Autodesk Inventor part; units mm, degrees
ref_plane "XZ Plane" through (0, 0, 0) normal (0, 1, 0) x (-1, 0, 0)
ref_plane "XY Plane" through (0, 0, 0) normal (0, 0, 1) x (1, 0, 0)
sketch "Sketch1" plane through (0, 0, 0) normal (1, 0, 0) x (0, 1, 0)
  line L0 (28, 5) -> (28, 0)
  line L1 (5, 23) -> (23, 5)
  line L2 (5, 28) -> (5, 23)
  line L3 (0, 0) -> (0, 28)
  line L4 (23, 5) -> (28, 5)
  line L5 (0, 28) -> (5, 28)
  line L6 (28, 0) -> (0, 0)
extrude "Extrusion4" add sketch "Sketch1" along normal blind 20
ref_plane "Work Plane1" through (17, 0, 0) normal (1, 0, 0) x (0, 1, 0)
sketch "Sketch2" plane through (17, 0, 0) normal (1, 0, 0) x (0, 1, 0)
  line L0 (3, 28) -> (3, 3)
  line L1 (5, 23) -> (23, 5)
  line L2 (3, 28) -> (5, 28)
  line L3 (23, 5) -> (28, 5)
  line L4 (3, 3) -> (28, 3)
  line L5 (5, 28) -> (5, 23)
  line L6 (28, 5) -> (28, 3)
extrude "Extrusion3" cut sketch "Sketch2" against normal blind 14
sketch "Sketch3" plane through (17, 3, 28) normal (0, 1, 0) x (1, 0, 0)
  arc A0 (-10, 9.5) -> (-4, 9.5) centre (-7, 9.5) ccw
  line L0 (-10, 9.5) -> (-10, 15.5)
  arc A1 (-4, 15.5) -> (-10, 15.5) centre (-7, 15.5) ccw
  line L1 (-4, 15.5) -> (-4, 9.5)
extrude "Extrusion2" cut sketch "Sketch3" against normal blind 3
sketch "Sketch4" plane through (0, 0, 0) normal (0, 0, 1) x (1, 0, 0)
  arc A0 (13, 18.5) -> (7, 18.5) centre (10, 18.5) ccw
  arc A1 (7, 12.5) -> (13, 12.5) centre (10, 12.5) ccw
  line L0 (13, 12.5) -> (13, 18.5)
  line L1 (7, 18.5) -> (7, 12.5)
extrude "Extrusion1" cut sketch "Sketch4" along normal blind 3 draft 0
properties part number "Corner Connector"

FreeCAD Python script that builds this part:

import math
import FreeCAD as App
import Part
import Sketcher


def add_polygon(sketch, points):
    """Adds a closed chain of lines whose ends are joined by coincident constraints."""
    first, n = sketch.GeometryCount, len(points)
    for a, b in zip(points, points[1:] + points[:1]):
        sketch.addGeometry(Part.LineSegment(App.Vector(*a, 0), App.Vector(*b, 0)), False)
    for i in range(n):
        sketch.addConstraint(Sketcher.Constraint("Coincident", first + i, 2, first + (i + 1) % n, 1))

doc = App.newDocument("Part")
body = doc.addObject("PartDesign::Body", "Body")

sketch1 = body.newObject("Sketcher::SketchObject", "Sketch")
sketch1.AttachmentSupport = (doc.getObject("YZ_Plane"), [""])
sketch1.MapMode = "FlatFace"
add_polygon(sketch1, [(28, 0), (28, 5), (23, 5), (5, 23), (5, 28), (0, 28), (0, 0)])
sketch1.addConstraint([
    Sketcher.Constraint("Vertical", 0),
    Sketcher.Constraint("Horizontal", 1),
    Sketcher.Constraint("Vertical", 3),
    Sketcher.Constraint("Horizontal", 4),
    Sketcher.Constraint("Vertical", 5),
    Sketcher.Constraint("Horizontal", 6),
    Sketcher.Constraint("Coincident", 5, 2, -1, 1),
    Sketcher.Constraint("Equal", 1, 4),
    Sketcher.Constraint("Equal", 4, 0),
    Sketcher.Constraint("Equal", 0, 3),
    Sketcher.Constraint("Equal", 6, 5),
    Sketcher.Constraint("DistanceX", 1, 2, 1, 1, 5.0),
    Sketcher.Constraint("DistanceX", 6, 1, 6, 2, 28.0),
])
pad1 = body.newObject("PartDesign::Pad", "Pad")
pad1.Profile = sketch1
pad1.Length = 20

sketch2 = body.newObject("Sketcher::SketchObject", "Sketch001")
sketch2.AttachmentSupport = (doc.getObject("YZ_Plane"), [""])
sketch2.MapMode = "FlatFace"
sketch2.AttachmentOffset = App.Placement(App.Vector(0, 0, 17), App.Rotation())
add_polygon(sketch2, [(5, 28), (3, 28), (3, 3), (28, 3), (28, 5), (23, 5), (5, 23)])
sketch2.addConstraint([
    Sketcher.Constraint("Horizontal", 0),
    Sketcher.Constraint("Vertical", 1),
    Sketcher.Constraint("Horizontal", 2),
    Sketcher.Constraint("Vertical", 3),
    Sketcher.Constraint("Horizontal", 4),
    Sketcher.Constraint("Vertical", 6),
    Sketcher.Constraint("Equal", 2, 1),
    Sketcher.Constraint("Equal", 0, 3),
    Sketcher.Constraint("Equal", 4, 6),
    Sketcher.Constraint("DistanceX", 0, 2, 0, 1, 2.0),
    Sketcher.Constraint("DistanceX", 2, 1, 2, 2, 25.0),
    Sketcher.Constraint("DistanceX", 4, 2, 4, 1, 5.0),
    Sketcher.Constraint("DistanceX", -1, 1, 0, 2, 3.0),
    Sketcher.Constraint("DistanceY", -1, 1, 0, 2, 28.0),
])
pocket1 = body.newObject("PartDesign::Pocket", "Pocket")
pocket1.Profile = sketch2
pocket1.Length = 14

sketch3 = body.newObject("Sketcher::SketchObject", "Sketch002")
sketch3.AttachmentSupport = (doc.getObject("XZ_Plane"), [""])
sketch3.MapMode = "FlatFace"
sketch3.AttachmentOffset = App.Placement(App.Vector(0, 0, -3), App.Rotation())
sketch3.addGeometry([
    Part.LineSegment(App.Vector(7, 12.5, 0), App.Vector(7, 18.5, 0)),
    Part.ArcOfCircle(Part.Circle(App.Vector(10, 18.5, 0), App.Vector(0, 0, 1), 3), math.radians(0), math.radians(180)),
    Part.LineSegment(App.Vector(13, 18.5, 0), App.Vector(13, 12.5, 0)),
    Part.ArcOfCircle(Part.Circle(App.Vector(10, 12.5, 0), App.Vector(0, 0, 1), 3), math.radians(180), math.radians(360)),
], False)
sketch3.addConstraint([
    Sketcher.Constraint("Tangent", 0, 2, 1, 2),
    Sketcher.Constraint("Tangent", 1, 1, 2, 1),
    Sketcher.Constraint("Tangent", 2, 2, 3, 2),
    Sketcher.Constraint("Tangent", 3, 1, 0, 1),
    Sketcher.Constraint("Vertical", 0),
    Sketcher.Constraint("Vertical", 2),
    Sketcher.Constraint("Radius", 1, 3.0),
    Sketcher.Constraint("DistanceY", 0, 1, 0, 2, 6.0),
    Sketcher.Constraint("DistanceX", -1, 1, 1, 3, 10.0),
    Sketcher.Constraint("DistanceY", -1, 1, 1, 3, 18.5),
])
pocket2 = body.newObject("PartDesign::Pocket", "Pocket001")
pocket2.Profile = sketch3
pocket2.Length = 3
pocket2.Reversed = True

sketch4 = body.newObject("Sketcher::SketchObject", "Sketch003")
sketch4.AttachmentSupport = (doc.getObject("XY_Plane"), [""])
sketch4.MapMode = "FlatFace"
sketch4.addGeometry([
    Part.LineSegment(App.Vector(13, 12.5, 0), App.Vector(13, 18.5, 0)),
    Part.ArcOfCircle(Part.Circle(App.Vector(10, 18.5, 0), App.Vector(0, 0, 1), 3), math.radians(0), math.radians(180)),
    Part.LineSegment(App.Vector(7, 18.5, 0), App.Vector(7, 12.5, 0)),
    Part.ArcOfCircle(Part.Circle(App.Vector(10, 12.5, 0), App.Vector(0, 0, 1), 3), math.radians(180), math.radians(360)),
], False)
sketch4.addConstraint([
    Sketcher.Constraint("Tangent", 0, 2, 1, 1),
    Sketcher.Constraint("Tangent", 1, 2, 2, 1),
    Sketcher.Constraint("Tangent", 2, 2, 3, 1),
    Sketcher.Constraint("Tangent", 3, 2, 0, 1),
    Sketcher.Constraint("Vertical", 0),
    Sketcher.Constraint("Vertical", 2),
    Sketcher.Constraint("Radius", 1, 3.0),
    Sketcher.Constraint("DistanceY", 0, 1, 0, 2, 6.0),
    Sketcher.Constraint("DistanceX", -1, 1, 1, 3, 10.0),
    Sketcher.Constraint("DistanceY", -1, 1, 1, 3, 18.5),
])
pocket3 = body.newObject("PartDesign::Pocket", "Pocket002")
pocket3.Profile = sketch4
pocket3.Length = 3
pocket3.Reversed = True

doc.recompute()
